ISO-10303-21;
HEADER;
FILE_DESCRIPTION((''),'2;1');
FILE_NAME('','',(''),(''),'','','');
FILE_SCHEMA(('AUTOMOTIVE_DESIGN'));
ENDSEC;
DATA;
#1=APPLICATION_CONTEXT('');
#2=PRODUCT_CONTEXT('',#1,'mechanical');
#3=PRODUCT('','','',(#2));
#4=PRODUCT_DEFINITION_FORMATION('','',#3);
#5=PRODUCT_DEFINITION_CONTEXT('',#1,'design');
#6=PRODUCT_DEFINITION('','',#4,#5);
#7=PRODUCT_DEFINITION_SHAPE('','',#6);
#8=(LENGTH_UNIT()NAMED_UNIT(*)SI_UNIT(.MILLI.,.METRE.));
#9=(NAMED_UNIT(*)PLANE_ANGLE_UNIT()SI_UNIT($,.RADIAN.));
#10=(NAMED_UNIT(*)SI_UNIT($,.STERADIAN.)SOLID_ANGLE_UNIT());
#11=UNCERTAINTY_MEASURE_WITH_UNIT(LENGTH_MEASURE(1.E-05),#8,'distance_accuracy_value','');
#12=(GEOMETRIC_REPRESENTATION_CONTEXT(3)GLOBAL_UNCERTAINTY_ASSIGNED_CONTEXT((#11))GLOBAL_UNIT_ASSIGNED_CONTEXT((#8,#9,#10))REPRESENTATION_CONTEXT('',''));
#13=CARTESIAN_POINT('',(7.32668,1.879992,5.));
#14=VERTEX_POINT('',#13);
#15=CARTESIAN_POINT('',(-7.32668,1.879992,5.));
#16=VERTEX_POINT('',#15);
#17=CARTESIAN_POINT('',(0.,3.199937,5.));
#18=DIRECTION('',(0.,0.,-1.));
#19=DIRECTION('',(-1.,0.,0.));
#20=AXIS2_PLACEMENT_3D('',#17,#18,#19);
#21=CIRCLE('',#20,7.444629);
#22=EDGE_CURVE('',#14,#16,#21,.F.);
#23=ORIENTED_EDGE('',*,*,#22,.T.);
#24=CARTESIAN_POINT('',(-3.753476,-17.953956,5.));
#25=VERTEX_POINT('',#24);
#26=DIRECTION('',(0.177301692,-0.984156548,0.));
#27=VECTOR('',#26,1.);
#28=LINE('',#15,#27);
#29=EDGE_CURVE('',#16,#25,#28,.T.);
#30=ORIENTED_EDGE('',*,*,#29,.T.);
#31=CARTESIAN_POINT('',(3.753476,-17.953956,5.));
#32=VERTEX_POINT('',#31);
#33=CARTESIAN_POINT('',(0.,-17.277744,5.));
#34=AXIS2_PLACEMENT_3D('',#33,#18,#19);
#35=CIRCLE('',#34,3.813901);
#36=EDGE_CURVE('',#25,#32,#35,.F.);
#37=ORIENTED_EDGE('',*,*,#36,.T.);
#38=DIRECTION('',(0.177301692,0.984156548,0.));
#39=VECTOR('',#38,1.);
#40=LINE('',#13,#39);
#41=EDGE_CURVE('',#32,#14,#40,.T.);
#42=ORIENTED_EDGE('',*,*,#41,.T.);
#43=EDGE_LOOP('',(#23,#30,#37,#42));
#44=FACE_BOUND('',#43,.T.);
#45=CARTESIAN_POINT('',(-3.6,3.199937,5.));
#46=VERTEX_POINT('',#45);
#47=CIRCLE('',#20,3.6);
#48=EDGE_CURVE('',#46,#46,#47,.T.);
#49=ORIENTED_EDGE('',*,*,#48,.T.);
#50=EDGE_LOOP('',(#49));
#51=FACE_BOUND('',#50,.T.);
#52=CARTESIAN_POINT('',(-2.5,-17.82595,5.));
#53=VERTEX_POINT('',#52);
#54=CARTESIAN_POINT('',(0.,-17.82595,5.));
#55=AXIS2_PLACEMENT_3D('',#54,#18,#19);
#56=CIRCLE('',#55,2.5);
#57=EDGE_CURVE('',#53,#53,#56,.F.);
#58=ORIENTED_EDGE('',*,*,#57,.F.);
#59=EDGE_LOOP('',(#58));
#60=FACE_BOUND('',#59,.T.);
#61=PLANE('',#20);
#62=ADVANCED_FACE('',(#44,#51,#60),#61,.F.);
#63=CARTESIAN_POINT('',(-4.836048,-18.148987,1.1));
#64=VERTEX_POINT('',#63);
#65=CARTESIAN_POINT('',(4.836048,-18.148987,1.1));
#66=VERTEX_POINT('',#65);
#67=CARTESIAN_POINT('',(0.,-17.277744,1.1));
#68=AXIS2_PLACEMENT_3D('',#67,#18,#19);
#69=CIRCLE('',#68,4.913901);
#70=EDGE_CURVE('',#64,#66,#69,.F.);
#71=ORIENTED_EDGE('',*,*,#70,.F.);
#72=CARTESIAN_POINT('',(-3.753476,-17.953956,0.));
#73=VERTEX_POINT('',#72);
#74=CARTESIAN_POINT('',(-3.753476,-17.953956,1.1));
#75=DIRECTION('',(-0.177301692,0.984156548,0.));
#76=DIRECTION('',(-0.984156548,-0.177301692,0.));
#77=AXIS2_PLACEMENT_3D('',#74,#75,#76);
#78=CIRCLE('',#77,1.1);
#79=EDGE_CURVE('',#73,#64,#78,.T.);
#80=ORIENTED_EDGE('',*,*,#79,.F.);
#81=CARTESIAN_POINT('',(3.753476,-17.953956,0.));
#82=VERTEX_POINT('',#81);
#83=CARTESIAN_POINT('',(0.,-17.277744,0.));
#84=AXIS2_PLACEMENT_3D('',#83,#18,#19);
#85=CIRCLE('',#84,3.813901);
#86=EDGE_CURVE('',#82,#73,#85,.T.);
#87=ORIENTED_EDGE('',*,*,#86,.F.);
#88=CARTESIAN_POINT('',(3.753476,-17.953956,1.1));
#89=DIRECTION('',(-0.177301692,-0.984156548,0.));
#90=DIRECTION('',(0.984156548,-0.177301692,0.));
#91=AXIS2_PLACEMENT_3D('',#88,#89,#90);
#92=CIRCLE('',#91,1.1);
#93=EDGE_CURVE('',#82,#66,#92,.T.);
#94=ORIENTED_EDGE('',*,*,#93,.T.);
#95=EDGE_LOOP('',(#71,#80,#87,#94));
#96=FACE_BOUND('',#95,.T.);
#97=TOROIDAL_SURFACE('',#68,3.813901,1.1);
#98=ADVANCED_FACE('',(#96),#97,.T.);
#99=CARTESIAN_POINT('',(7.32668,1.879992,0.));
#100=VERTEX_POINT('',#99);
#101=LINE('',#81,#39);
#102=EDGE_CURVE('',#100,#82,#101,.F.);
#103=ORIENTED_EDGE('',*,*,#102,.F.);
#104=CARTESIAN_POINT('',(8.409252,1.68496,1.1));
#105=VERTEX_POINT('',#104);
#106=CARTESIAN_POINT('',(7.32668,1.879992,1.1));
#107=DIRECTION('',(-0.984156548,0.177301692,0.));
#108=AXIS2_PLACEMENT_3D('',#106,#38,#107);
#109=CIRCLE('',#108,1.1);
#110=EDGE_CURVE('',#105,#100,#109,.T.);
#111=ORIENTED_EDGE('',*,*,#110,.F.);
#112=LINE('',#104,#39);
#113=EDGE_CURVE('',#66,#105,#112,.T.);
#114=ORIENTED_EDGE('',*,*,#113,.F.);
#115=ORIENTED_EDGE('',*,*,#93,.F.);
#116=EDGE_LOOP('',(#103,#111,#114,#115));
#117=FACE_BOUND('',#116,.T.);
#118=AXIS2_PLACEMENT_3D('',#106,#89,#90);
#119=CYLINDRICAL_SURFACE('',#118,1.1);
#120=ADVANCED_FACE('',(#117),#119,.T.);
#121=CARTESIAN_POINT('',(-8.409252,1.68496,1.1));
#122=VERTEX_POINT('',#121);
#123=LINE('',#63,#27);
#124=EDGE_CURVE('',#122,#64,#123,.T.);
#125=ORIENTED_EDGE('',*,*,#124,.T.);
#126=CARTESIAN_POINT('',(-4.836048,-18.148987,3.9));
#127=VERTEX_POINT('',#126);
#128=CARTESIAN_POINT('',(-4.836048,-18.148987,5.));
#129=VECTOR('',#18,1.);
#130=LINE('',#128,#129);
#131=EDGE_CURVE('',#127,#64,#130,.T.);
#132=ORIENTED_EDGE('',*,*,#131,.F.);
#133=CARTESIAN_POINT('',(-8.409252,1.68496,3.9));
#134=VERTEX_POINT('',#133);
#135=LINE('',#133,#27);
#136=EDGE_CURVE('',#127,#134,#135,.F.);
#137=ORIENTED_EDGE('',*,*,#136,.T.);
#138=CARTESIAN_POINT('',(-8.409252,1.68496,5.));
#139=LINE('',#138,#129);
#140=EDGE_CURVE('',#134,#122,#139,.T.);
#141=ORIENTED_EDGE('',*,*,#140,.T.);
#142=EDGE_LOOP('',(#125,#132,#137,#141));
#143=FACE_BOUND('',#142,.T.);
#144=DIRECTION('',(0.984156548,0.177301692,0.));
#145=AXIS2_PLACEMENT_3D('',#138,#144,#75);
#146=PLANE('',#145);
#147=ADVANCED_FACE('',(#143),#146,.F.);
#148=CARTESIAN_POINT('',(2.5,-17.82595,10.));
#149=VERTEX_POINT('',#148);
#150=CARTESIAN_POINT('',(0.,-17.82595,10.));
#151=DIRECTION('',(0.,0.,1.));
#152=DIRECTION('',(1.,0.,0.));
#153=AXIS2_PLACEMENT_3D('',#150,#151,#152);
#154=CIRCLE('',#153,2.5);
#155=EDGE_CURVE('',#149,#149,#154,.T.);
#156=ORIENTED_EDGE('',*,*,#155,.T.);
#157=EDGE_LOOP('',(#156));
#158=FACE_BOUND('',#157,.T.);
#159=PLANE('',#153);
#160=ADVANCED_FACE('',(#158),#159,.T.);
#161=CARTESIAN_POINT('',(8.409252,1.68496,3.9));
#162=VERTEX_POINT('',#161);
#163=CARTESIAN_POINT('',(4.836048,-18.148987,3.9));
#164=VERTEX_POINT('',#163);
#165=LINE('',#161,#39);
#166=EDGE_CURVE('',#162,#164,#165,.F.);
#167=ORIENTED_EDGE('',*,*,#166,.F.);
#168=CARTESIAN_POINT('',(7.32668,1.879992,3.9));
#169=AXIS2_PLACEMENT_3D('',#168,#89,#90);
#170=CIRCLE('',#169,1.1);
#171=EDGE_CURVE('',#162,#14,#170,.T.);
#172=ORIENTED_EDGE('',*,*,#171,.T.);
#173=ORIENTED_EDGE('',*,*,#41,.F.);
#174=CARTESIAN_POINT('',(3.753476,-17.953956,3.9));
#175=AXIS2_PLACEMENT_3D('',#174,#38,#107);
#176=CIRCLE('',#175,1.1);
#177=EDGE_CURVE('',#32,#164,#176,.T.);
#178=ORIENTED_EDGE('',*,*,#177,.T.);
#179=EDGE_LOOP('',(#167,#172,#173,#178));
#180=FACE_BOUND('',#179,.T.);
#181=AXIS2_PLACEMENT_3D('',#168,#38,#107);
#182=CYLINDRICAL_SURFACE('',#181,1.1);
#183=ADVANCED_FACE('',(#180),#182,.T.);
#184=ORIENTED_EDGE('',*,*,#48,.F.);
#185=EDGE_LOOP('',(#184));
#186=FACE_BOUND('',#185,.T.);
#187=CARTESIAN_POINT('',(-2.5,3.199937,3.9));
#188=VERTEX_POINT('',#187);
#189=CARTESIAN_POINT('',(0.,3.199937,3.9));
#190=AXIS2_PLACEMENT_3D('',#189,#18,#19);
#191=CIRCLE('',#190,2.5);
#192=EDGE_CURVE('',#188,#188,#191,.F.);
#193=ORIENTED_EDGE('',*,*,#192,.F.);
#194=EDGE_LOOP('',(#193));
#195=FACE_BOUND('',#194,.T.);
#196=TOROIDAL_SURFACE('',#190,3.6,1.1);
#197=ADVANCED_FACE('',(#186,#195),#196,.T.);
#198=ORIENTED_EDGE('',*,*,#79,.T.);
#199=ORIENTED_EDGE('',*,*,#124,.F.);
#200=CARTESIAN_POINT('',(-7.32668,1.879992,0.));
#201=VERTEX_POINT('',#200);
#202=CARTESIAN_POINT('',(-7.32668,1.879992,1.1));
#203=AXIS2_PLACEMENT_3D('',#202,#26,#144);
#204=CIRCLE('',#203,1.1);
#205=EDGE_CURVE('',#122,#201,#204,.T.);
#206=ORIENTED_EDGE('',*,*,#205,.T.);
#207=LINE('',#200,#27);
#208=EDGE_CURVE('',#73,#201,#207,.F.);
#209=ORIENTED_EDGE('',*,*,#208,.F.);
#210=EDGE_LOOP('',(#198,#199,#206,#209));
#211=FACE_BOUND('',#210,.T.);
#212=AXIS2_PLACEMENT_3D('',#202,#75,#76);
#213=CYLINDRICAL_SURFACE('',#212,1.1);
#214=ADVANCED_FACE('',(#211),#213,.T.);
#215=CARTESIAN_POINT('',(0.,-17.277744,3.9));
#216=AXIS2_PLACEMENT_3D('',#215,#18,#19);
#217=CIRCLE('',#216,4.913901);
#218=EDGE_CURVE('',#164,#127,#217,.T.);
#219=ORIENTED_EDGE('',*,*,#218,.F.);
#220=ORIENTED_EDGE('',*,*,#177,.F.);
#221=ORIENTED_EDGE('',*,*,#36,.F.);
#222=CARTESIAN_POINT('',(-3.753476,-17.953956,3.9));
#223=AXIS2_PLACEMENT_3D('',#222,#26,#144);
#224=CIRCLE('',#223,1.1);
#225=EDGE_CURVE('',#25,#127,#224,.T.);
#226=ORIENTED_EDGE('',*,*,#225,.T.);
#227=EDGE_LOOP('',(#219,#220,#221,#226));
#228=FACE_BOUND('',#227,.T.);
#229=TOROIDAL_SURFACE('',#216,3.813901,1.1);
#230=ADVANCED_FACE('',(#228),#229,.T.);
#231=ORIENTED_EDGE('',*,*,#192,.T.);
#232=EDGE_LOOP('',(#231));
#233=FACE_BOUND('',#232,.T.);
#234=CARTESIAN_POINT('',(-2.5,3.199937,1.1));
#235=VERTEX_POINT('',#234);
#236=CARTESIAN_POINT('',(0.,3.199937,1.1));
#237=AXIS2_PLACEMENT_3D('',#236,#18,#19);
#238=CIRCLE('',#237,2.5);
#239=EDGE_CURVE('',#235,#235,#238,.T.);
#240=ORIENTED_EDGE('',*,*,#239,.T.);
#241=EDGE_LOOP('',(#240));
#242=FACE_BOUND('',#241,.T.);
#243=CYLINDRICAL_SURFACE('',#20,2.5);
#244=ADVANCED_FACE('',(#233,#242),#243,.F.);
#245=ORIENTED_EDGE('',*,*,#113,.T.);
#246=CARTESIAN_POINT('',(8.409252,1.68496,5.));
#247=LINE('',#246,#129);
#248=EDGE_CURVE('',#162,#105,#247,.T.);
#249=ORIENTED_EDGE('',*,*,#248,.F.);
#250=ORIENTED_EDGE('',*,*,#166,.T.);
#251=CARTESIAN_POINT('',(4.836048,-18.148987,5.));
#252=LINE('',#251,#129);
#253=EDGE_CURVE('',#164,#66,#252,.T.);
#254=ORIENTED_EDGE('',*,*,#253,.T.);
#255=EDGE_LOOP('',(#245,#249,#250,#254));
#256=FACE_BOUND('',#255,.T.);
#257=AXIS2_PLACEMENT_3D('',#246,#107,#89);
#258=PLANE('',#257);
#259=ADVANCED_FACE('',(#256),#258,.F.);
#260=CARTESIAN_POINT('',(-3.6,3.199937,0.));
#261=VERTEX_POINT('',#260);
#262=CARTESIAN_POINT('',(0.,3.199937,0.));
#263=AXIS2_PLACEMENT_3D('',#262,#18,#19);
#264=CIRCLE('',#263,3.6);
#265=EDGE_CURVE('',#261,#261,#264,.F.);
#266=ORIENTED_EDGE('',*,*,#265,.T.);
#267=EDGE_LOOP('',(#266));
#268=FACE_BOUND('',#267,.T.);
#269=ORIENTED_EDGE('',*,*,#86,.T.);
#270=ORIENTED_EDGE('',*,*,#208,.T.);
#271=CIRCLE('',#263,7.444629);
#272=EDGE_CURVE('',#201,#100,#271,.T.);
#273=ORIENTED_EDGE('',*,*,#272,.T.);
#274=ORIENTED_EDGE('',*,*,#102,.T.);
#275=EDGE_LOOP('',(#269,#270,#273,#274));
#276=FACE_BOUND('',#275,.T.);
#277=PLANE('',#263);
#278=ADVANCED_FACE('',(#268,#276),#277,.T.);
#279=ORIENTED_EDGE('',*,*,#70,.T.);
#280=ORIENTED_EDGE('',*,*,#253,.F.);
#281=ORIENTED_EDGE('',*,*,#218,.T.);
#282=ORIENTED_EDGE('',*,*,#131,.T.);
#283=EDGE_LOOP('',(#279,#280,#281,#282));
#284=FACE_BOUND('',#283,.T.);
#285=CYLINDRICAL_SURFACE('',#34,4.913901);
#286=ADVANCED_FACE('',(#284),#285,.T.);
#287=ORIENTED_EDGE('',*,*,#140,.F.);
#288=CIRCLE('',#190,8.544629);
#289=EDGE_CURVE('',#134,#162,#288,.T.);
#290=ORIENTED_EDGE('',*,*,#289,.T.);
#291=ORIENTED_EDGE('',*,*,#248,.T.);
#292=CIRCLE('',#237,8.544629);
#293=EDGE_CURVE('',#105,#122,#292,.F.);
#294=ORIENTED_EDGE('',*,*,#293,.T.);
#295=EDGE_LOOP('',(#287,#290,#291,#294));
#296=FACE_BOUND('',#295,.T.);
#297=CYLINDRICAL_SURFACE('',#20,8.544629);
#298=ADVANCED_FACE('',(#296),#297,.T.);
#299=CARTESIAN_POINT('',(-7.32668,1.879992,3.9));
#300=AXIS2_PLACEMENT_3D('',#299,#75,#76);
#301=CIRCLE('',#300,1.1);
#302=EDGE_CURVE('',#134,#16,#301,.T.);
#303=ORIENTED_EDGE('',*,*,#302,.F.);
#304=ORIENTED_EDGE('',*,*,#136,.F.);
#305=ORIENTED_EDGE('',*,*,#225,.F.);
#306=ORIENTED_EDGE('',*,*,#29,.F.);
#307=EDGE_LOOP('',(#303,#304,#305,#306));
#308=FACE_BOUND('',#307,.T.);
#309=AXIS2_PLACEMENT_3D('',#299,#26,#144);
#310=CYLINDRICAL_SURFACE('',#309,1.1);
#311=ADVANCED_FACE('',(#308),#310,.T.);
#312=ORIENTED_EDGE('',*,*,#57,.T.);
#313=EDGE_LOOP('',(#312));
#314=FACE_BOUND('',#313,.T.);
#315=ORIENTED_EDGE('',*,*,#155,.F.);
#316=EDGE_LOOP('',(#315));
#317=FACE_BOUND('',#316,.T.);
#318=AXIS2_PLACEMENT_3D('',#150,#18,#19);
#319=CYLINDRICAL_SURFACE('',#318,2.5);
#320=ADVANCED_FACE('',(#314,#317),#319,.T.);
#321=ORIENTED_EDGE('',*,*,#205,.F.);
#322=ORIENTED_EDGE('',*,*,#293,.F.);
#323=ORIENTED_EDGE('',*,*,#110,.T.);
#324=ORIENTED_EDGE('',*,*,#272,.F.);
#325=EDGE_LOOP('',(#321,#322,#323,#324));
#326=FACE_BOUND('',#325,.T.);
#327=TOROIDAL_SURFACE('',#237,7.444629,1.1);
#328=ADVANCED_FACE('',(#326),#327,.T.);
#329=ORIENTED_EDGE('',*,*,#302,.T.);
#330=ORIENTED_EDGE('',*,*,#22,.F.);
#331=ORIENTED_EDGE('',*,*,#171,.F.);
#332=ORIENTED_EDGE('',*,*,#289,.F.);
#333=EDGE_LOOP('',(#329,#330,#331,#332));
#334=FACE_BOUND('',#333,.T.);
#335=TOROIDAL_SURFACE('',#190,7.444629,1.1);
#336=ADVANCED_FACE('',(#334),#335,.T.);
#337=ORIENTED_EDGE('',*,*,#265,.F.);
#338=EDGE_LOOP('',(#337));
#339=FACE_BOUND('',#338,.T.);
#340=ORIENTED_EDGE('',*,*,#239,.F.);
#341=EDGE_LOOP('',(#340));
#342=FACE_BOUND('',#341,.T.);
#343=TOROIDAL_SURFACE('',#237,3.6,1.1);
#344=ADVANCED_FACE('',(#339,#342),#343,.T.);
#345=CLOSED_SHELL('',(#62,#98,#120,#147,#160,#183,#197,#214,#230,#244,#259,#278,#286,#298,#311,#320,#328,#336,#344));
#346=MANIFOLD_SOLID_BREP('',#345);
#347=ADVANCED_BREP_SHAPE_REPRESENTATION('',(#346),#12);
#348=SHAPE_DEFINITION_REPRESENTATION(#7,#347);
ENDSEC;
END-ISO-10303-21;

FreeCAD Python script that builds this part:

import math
import FreeCAD as App
import Part
import Sketcher

V = App.Vector


def edges_at(feature, points):
    """Names of the edges that pass closest to the given points."""
    edges = feature.Shape.Edges
    near = lambda p: min(range(len(edges)), key=lambda i: edges[i].distToShape(Part.Vertex(*p))[0])
    return sorted({f"Edge{near(p) + 1}" for p in points})

doc = App.newDocument("Part")
body = doc.addObject("PartDesign::Body", "Body")

sketch1 = doc.addObject("Sketcher::SketchObject", "Sketch")
body.addObject(sketch1)
sketch1.AttachmentSupport = (doc.XY_Plane, [""])
sketch1.MapMode = "FlatFace"
sketch1.addGeometry([
    Part.LineSegment(V(-8.4, 1.7, 0), V(-4.8, -18.1, 0)),
    Part.ArcOfCircle(Part.Circle(V(0, -17.3, 0), V(0, 0, 1), 4.9), math.radians(-170), math.radians(-10)),
    Part.LineSegment(V(4.8, -18.1, 0), V(8.4, 1.7, 0)),
    Part.ArcOfCircle(Part.Circle(V(0, 3.2, 0), V(0, 0, 1), 8.5), math.radians(-10), math.radians(190)),
    Part.Circle(V(0, 3.2, 0), V(0, 0, 1), 2.5),
], False)
sketch1.addConstraint([
    Sketcher.Constraint("Tangent", 0, 2, 1, 1),
    Sketcher.Constraint("Tangent", 1, 2, 2, 1),
    Sketcher.Constraint("Tangent", 2, 2, 3, 1),
    Sketcher.Constraint("Tangent", 3, 2, 0, 1),
    Sketcher.Constraint("Coincident", 4, 3, 3, 3),
    Sketcher.Constraint("Symmetric", 0, 2, 1, 2, -2),
    Sketcher.Constraint("Diameter", 4, 5.0),
    Sketcher.Constraint("Radius", 1, 4.913901),
    Sketcher.Constraint("Radius", 3, 8.544629),
    Sketcher.Constraint("DistanceX", 0, 2, 2, 2, 13.2453),
    Sketcher.Constraint("DistanceY", -1, 1, 2, 2, 1.68496),
])
pad1 = doc.addObject("PartDesign::Pad", "Pad")
body.addObject(pad1)
pad1.Profile = sketch1
pad1.Length = 5
doc.recompute()

fillet = doc.addObject("PartDesign::Fillet", "Fillet")
body.addObject(fillet)
fillet.Base = (pad1, edges_at(pad1, [
    (0, -22.192, 5),
    (-2.5, 3.2, 0),
    (-2.5, 3.2, 5),
    (6.623, -8.232, 5),
    (0, 11.745, 5),
    (6.623, -8.232, 0),
    (0, -22.192, 0),
    (-6.623, -8.232, 0),
    (0, 11.745, 0),
    (-6.623, -8.232, 5),
]))
fillet.Radius = 1.1

sketch2 = doc.addObject("Sketcher::SketchObject", "Sketch001")
body.addObject(sketch2)
sketch2.AttachmentSupport = (doc.XY_Plane, [""])
sketch2.MapMode = "FlatFace"
sketch2.AttachmentOffset = App.Placement(V(0, 0, 5), App.Rotation())
sketch2.addGeometry(Part.Circle(V(0, -17.8, 0), V(0, 0, 1), 2.5), False)
sketch2.addConstraint([
    Sketcher.Constraint("PointOnObject", 0, 3, -2),
    Sketcher.Constraint("Diameter", 0, 5.0),
    Sketcher.Constraint("DistanceY", 0, 3, -1, 1, 17.82595),
])
pad2 = doc.addObject("PartDesign::Pad", "Pad001")
body.addObject(pad2)
pad2.Profile = sketch2
pad2.Length = 5

doc.recompute()
